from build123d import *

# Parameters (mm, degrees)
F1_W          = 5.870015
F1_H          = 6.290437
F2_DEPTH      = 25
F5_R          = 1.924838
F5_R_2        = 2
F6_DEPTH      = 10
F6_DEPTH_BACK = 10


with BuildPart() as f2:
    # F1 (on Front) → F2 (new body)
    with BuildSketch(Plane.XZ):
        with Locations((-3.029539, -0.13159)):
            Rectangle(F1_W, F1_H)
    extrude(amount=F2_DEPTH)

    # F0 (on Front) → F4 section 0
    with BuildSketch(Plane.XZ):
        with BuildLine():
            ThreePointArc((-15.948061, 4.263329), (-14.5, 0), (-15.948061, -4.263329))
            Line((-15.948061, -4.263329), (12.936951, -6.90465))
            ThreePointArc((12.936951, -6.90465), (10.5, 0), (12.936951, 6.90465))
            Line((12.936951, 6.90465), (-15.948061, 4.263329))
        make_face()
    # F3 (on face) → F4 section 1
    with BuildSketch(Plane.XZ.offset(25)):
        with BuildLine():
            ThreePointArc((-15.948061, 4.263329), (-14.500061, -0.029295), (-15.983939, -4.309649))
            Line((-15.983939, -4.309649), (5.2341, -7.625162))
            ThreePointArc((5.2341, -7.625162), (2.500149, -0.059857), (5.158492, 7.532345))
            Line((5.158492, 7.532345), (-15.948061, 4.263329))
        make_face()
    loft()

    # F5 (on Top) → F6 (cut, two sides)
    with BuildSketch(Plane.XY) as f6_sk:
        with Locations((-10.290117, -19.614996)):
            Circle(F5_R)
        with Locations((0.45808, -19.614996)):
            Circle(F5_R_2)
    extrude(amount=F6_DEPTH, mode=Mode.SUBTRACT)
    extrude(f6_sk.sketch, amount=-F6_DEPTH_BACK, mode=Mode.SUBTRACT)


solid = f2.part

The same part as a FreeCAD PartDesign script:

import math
import FreeCAD as App
import Part
import Sketcher
from FreeCAD import Vector


def add_polygon(sketch, points):
    """Adds a closed chain of lines whose ends are joined by coincident constraints."""
    first, n = sketch.GeometryCount, len(points)
    for a, b in zip(points, points[1:] + points[:1]):
        sketch.addGeometry(Part.LineSegment(App.Vector(*a, 0), App.Vector(*b, 0)), False)
    for i in range(n):
        sketch.addConstraint(Sketcher.Constraint("Coincident", first + i, 2, first + (i + 1) % n, 1))

doc = App.newDocument("Part")
body = doc.addObject("PartDesign::Body", "Body")

# Sketch on XZ plane
sketch1 = body.newObject("Sketcher::SketchObject", "Sketch")
sketch1.AttachmentSupport = (doc.getObject("XZ_Plane"), [""])
sketch1.MapMode = "FlatFace"
add_polygon(sketch1, [(-6, 3), (-6, -3), (0, -3), (0, 3)])  # lines 0-3
sketch1.addConstraint(Sketcher.Constraint("Vertical", 0))
sketch1.addConstraint(Sketcher.Constraint("Horizontal", 1))
sketch1.addConstraint(Sketcher.Constraint("Vertical", 2))
sketch1.addConstraint(Sketcher.Constraint("Horizontal", 3))
sketch1.addConstraint(Sketcher.Constraint("DistanceX", 1, 1, 1, 2, 5.870015))
sketch1.addConstraint(Sketcher.Constraint("DistanceY", 0, 2, 0, 1, 6.290437))
sketch1.addConstraint(Sketcher.Constraint("DistanceY", 0, 2, -1, 1, 3.276809))
sketch1.addConstraint(Sketcher.Constraint("DistanceX", 1, 2, -1, 1, 0.094532))
pad1 = body.newObject("PartDesign::Pad", "Pad")
pad1.Profile = sketch1
pad1.Length = 25

# Sketch on XZ plane
sketch2 = body.newObject("Sketcher::SketchObject", "Sketch001")
sketch2.AttachmentSupport = (doc.getObject("XZ_Plane"), [""])
sketch2.MapMode = "FlatFace"
sketch2.addGeometry(Part.ArcOfCircle(Part.Circle(Vector(-22, 0, 0), Vector(0, 0, 1), 7), math.radians(-38), math.radians(38)), False)
sketch2.addGeometry(Part.LineSegment(Vector(-16, -4, 0), Vector(13, -7, 0)), False)
sketch2.addGeometry(Part.ArcOfCircle(Part.Circle(Vector(21, 0, 0), Vector(0, 0, 1), 11), math.radians(141), math.radians(219)), False)
sketch2.addGeometry(Part.LineSegment(Vector(13, 7, 0), Vector(-16, 4, 0)), False)
sketch2.addConstraint(Sketcher.Constraint("Coincident", 0, 1, 1, 1))
sketch2.addConstraint(Sketcher.Constraint("Coincident", 1, 2, 2, 2))
sketch2.addConstraint(Sketcher.Constraint("Coincident", 2, 1, 3, 1))
sketch2.addConstraint(Sketcher.Constraint("Coincident", 3, 2, 0, 2))
sketch2.addConstraint(Sketcher.Constraint("Symmetric", 0, 3, 2, 3, -1, 1))
sketch2.addConstraint(Sketcher.Constraint("Symmetric", 1, 2, 2, 1, -1))
sketch2.addConstraint(Sketcher.Constraint("Vertical", 0, 1, 3, 2))
sketch2.addConstraint(Sketcher.Constraint("Radius", 0, 7.0))
sketch2.addConstraint(Sketcher.Constraint("Radius", 2, 11.0))
sketch2.addConstraint(Sketcher.Constraint("DistanceX", 0, 3, 2, 3, 43.0))
sketch2.addConstraint(Sketcher.Constraint("DistanceY", 1, 2, 2, 1, 13.8093))
sketch2.addConstraint(Sketcher.Constraint("DistanceX", 0, 1, -1, 1, 15.948061))

# Sketch on XZ plane
sketch3 = body.newObject("Sketcher::SketchObject", "Sketch002")
sketch3.AttachmentSupport = (doc.getObject("XZ_Plane"), [""])
sketch3.MapMode = "FlatFace"
sketch3.AttachmentOffset = App.Placement(Vector(0, 0, 25), App.Rotation())
sketch3.addGeometry(Part.ArcOfCircle(Part.Circle(Vector(-21, 0, 0), Vector(0, 0, 1), 7), math.radians(-38), math.radians(38)), False)
sketch3.addGeometry(Part.LineSegment(Vector(-16, -4, 0), Vector(5, -8, 0)), False)
sketch3.addGeometry(Part.ArcOfCircle(Part.Circle(Vector(14, 0, 0), Vector(0, 0, 1), 12), math.radians(141), math.radians(219)), False)
sketch3.addGeometry(Part.LineSegment(Vector(5, 8, 0), Vector(-16, 4, 0)), False)
sketch3.addConstraint(Sketcher.Constraint("Coincident", 0, 1, 1, 1))
sketch3.addConstraint(Sketcher.Constraint("Coincident", 1, 2, 2, 2))
sketch3.addConstraint(Sketcher.Constraint("Coincident", 2, 1, 3, 1))
sketch3.addConstraint(Sketcher.Constraint("Coincident", 3, 2, 0, 2))
sketch3.addConstraint(Sketcher.Constraint("PointOnObject", 0, 3, -1))
sketch3.addConstraint(Sketcher.Constraint("PointOnObject", 2, 3, -1))
sketch3.addConstraint(Sketcher.Constraint("Radius", 0, 7.0))
sketch3.addConstraint(Sketcher.Constraint("Radius", 2, 11.999998))
sketch3.addConstraint(Sketcher.Constraint("DistanceX", 0, 3, -1, 1, 21.499999))
sketch3.addConstraint(Sketcher.Constraint("DistanceX", -1, 1, 1, 2, 5.2341))
sketch3.addConstraint(Sketcher.Constraint("DistanceX", 0, 1, -1, 1, 15.983939))
sketch3.addConstraint(Sketcher.Constraint("DistanceX", -1, 1, 2, 1, 5.158492))
sketch3.addConstraint(Sketcher.Constraint("DistanceX", 3, 2, -1, 1, 15.948061))
sketch3.addConstraint(Sketcher.Constraint("DistanceY", 1, 2, 2, 3, 7.625162))

additiveloft = body.newObject("PartDesign::AdditiveLoft", "AdditiveLoft")
additiveloft.Profile = sketch2
additiveloft.Sections = [sketch3]

# Sketch on XY plane
sketch4 = body.newObject("Sketcher::SketchObject", "Sketch003")
sketch4.AttachmentSupport = (doc.getObject("XY_Plane"), [""])
sketch4.MapMode = "FlatFace"
sketch4.addGeometry(Part.Circle(Vector(-10.3, -19.6, 0), Vector(0, 0, 1), 1.9), False)
sketch4.addGeometry(Part.Circle(Vector(0.5, -19.6, 0), Vector(0, 0, 1), 2), False)
sketch4.addConstraint(Sketcher.Constraint("Horizontal", 0, 3, 1, 3))
sketch4.addConstraint(Sketcher.Constraint("Diameter", 1, 4.0))
sketch4.addConstraint(Sketcher.Constraint("Diameter", 0, 3.849676))
sketch4.addConstraint(Sketcher.Constraint("DistanceX", -1, 1, 1, 3, 0.45808))
sketch4.addConstraint(Sketcher.Constraint("DistanceX", 0, 3, -1, 1, 10.290117))
sketch4.addConstraint(Sketcher.Constraint("DistanceY", 0, 3, -1, 1, 19.614996))
pocket1 = body.newObject("PartDesign::Pocket", "Pocket")
pocket1.Profile = sketch4
pocket1.Type = "ThroughAll"
pocket1.Midplane = True

doc.recompute()
